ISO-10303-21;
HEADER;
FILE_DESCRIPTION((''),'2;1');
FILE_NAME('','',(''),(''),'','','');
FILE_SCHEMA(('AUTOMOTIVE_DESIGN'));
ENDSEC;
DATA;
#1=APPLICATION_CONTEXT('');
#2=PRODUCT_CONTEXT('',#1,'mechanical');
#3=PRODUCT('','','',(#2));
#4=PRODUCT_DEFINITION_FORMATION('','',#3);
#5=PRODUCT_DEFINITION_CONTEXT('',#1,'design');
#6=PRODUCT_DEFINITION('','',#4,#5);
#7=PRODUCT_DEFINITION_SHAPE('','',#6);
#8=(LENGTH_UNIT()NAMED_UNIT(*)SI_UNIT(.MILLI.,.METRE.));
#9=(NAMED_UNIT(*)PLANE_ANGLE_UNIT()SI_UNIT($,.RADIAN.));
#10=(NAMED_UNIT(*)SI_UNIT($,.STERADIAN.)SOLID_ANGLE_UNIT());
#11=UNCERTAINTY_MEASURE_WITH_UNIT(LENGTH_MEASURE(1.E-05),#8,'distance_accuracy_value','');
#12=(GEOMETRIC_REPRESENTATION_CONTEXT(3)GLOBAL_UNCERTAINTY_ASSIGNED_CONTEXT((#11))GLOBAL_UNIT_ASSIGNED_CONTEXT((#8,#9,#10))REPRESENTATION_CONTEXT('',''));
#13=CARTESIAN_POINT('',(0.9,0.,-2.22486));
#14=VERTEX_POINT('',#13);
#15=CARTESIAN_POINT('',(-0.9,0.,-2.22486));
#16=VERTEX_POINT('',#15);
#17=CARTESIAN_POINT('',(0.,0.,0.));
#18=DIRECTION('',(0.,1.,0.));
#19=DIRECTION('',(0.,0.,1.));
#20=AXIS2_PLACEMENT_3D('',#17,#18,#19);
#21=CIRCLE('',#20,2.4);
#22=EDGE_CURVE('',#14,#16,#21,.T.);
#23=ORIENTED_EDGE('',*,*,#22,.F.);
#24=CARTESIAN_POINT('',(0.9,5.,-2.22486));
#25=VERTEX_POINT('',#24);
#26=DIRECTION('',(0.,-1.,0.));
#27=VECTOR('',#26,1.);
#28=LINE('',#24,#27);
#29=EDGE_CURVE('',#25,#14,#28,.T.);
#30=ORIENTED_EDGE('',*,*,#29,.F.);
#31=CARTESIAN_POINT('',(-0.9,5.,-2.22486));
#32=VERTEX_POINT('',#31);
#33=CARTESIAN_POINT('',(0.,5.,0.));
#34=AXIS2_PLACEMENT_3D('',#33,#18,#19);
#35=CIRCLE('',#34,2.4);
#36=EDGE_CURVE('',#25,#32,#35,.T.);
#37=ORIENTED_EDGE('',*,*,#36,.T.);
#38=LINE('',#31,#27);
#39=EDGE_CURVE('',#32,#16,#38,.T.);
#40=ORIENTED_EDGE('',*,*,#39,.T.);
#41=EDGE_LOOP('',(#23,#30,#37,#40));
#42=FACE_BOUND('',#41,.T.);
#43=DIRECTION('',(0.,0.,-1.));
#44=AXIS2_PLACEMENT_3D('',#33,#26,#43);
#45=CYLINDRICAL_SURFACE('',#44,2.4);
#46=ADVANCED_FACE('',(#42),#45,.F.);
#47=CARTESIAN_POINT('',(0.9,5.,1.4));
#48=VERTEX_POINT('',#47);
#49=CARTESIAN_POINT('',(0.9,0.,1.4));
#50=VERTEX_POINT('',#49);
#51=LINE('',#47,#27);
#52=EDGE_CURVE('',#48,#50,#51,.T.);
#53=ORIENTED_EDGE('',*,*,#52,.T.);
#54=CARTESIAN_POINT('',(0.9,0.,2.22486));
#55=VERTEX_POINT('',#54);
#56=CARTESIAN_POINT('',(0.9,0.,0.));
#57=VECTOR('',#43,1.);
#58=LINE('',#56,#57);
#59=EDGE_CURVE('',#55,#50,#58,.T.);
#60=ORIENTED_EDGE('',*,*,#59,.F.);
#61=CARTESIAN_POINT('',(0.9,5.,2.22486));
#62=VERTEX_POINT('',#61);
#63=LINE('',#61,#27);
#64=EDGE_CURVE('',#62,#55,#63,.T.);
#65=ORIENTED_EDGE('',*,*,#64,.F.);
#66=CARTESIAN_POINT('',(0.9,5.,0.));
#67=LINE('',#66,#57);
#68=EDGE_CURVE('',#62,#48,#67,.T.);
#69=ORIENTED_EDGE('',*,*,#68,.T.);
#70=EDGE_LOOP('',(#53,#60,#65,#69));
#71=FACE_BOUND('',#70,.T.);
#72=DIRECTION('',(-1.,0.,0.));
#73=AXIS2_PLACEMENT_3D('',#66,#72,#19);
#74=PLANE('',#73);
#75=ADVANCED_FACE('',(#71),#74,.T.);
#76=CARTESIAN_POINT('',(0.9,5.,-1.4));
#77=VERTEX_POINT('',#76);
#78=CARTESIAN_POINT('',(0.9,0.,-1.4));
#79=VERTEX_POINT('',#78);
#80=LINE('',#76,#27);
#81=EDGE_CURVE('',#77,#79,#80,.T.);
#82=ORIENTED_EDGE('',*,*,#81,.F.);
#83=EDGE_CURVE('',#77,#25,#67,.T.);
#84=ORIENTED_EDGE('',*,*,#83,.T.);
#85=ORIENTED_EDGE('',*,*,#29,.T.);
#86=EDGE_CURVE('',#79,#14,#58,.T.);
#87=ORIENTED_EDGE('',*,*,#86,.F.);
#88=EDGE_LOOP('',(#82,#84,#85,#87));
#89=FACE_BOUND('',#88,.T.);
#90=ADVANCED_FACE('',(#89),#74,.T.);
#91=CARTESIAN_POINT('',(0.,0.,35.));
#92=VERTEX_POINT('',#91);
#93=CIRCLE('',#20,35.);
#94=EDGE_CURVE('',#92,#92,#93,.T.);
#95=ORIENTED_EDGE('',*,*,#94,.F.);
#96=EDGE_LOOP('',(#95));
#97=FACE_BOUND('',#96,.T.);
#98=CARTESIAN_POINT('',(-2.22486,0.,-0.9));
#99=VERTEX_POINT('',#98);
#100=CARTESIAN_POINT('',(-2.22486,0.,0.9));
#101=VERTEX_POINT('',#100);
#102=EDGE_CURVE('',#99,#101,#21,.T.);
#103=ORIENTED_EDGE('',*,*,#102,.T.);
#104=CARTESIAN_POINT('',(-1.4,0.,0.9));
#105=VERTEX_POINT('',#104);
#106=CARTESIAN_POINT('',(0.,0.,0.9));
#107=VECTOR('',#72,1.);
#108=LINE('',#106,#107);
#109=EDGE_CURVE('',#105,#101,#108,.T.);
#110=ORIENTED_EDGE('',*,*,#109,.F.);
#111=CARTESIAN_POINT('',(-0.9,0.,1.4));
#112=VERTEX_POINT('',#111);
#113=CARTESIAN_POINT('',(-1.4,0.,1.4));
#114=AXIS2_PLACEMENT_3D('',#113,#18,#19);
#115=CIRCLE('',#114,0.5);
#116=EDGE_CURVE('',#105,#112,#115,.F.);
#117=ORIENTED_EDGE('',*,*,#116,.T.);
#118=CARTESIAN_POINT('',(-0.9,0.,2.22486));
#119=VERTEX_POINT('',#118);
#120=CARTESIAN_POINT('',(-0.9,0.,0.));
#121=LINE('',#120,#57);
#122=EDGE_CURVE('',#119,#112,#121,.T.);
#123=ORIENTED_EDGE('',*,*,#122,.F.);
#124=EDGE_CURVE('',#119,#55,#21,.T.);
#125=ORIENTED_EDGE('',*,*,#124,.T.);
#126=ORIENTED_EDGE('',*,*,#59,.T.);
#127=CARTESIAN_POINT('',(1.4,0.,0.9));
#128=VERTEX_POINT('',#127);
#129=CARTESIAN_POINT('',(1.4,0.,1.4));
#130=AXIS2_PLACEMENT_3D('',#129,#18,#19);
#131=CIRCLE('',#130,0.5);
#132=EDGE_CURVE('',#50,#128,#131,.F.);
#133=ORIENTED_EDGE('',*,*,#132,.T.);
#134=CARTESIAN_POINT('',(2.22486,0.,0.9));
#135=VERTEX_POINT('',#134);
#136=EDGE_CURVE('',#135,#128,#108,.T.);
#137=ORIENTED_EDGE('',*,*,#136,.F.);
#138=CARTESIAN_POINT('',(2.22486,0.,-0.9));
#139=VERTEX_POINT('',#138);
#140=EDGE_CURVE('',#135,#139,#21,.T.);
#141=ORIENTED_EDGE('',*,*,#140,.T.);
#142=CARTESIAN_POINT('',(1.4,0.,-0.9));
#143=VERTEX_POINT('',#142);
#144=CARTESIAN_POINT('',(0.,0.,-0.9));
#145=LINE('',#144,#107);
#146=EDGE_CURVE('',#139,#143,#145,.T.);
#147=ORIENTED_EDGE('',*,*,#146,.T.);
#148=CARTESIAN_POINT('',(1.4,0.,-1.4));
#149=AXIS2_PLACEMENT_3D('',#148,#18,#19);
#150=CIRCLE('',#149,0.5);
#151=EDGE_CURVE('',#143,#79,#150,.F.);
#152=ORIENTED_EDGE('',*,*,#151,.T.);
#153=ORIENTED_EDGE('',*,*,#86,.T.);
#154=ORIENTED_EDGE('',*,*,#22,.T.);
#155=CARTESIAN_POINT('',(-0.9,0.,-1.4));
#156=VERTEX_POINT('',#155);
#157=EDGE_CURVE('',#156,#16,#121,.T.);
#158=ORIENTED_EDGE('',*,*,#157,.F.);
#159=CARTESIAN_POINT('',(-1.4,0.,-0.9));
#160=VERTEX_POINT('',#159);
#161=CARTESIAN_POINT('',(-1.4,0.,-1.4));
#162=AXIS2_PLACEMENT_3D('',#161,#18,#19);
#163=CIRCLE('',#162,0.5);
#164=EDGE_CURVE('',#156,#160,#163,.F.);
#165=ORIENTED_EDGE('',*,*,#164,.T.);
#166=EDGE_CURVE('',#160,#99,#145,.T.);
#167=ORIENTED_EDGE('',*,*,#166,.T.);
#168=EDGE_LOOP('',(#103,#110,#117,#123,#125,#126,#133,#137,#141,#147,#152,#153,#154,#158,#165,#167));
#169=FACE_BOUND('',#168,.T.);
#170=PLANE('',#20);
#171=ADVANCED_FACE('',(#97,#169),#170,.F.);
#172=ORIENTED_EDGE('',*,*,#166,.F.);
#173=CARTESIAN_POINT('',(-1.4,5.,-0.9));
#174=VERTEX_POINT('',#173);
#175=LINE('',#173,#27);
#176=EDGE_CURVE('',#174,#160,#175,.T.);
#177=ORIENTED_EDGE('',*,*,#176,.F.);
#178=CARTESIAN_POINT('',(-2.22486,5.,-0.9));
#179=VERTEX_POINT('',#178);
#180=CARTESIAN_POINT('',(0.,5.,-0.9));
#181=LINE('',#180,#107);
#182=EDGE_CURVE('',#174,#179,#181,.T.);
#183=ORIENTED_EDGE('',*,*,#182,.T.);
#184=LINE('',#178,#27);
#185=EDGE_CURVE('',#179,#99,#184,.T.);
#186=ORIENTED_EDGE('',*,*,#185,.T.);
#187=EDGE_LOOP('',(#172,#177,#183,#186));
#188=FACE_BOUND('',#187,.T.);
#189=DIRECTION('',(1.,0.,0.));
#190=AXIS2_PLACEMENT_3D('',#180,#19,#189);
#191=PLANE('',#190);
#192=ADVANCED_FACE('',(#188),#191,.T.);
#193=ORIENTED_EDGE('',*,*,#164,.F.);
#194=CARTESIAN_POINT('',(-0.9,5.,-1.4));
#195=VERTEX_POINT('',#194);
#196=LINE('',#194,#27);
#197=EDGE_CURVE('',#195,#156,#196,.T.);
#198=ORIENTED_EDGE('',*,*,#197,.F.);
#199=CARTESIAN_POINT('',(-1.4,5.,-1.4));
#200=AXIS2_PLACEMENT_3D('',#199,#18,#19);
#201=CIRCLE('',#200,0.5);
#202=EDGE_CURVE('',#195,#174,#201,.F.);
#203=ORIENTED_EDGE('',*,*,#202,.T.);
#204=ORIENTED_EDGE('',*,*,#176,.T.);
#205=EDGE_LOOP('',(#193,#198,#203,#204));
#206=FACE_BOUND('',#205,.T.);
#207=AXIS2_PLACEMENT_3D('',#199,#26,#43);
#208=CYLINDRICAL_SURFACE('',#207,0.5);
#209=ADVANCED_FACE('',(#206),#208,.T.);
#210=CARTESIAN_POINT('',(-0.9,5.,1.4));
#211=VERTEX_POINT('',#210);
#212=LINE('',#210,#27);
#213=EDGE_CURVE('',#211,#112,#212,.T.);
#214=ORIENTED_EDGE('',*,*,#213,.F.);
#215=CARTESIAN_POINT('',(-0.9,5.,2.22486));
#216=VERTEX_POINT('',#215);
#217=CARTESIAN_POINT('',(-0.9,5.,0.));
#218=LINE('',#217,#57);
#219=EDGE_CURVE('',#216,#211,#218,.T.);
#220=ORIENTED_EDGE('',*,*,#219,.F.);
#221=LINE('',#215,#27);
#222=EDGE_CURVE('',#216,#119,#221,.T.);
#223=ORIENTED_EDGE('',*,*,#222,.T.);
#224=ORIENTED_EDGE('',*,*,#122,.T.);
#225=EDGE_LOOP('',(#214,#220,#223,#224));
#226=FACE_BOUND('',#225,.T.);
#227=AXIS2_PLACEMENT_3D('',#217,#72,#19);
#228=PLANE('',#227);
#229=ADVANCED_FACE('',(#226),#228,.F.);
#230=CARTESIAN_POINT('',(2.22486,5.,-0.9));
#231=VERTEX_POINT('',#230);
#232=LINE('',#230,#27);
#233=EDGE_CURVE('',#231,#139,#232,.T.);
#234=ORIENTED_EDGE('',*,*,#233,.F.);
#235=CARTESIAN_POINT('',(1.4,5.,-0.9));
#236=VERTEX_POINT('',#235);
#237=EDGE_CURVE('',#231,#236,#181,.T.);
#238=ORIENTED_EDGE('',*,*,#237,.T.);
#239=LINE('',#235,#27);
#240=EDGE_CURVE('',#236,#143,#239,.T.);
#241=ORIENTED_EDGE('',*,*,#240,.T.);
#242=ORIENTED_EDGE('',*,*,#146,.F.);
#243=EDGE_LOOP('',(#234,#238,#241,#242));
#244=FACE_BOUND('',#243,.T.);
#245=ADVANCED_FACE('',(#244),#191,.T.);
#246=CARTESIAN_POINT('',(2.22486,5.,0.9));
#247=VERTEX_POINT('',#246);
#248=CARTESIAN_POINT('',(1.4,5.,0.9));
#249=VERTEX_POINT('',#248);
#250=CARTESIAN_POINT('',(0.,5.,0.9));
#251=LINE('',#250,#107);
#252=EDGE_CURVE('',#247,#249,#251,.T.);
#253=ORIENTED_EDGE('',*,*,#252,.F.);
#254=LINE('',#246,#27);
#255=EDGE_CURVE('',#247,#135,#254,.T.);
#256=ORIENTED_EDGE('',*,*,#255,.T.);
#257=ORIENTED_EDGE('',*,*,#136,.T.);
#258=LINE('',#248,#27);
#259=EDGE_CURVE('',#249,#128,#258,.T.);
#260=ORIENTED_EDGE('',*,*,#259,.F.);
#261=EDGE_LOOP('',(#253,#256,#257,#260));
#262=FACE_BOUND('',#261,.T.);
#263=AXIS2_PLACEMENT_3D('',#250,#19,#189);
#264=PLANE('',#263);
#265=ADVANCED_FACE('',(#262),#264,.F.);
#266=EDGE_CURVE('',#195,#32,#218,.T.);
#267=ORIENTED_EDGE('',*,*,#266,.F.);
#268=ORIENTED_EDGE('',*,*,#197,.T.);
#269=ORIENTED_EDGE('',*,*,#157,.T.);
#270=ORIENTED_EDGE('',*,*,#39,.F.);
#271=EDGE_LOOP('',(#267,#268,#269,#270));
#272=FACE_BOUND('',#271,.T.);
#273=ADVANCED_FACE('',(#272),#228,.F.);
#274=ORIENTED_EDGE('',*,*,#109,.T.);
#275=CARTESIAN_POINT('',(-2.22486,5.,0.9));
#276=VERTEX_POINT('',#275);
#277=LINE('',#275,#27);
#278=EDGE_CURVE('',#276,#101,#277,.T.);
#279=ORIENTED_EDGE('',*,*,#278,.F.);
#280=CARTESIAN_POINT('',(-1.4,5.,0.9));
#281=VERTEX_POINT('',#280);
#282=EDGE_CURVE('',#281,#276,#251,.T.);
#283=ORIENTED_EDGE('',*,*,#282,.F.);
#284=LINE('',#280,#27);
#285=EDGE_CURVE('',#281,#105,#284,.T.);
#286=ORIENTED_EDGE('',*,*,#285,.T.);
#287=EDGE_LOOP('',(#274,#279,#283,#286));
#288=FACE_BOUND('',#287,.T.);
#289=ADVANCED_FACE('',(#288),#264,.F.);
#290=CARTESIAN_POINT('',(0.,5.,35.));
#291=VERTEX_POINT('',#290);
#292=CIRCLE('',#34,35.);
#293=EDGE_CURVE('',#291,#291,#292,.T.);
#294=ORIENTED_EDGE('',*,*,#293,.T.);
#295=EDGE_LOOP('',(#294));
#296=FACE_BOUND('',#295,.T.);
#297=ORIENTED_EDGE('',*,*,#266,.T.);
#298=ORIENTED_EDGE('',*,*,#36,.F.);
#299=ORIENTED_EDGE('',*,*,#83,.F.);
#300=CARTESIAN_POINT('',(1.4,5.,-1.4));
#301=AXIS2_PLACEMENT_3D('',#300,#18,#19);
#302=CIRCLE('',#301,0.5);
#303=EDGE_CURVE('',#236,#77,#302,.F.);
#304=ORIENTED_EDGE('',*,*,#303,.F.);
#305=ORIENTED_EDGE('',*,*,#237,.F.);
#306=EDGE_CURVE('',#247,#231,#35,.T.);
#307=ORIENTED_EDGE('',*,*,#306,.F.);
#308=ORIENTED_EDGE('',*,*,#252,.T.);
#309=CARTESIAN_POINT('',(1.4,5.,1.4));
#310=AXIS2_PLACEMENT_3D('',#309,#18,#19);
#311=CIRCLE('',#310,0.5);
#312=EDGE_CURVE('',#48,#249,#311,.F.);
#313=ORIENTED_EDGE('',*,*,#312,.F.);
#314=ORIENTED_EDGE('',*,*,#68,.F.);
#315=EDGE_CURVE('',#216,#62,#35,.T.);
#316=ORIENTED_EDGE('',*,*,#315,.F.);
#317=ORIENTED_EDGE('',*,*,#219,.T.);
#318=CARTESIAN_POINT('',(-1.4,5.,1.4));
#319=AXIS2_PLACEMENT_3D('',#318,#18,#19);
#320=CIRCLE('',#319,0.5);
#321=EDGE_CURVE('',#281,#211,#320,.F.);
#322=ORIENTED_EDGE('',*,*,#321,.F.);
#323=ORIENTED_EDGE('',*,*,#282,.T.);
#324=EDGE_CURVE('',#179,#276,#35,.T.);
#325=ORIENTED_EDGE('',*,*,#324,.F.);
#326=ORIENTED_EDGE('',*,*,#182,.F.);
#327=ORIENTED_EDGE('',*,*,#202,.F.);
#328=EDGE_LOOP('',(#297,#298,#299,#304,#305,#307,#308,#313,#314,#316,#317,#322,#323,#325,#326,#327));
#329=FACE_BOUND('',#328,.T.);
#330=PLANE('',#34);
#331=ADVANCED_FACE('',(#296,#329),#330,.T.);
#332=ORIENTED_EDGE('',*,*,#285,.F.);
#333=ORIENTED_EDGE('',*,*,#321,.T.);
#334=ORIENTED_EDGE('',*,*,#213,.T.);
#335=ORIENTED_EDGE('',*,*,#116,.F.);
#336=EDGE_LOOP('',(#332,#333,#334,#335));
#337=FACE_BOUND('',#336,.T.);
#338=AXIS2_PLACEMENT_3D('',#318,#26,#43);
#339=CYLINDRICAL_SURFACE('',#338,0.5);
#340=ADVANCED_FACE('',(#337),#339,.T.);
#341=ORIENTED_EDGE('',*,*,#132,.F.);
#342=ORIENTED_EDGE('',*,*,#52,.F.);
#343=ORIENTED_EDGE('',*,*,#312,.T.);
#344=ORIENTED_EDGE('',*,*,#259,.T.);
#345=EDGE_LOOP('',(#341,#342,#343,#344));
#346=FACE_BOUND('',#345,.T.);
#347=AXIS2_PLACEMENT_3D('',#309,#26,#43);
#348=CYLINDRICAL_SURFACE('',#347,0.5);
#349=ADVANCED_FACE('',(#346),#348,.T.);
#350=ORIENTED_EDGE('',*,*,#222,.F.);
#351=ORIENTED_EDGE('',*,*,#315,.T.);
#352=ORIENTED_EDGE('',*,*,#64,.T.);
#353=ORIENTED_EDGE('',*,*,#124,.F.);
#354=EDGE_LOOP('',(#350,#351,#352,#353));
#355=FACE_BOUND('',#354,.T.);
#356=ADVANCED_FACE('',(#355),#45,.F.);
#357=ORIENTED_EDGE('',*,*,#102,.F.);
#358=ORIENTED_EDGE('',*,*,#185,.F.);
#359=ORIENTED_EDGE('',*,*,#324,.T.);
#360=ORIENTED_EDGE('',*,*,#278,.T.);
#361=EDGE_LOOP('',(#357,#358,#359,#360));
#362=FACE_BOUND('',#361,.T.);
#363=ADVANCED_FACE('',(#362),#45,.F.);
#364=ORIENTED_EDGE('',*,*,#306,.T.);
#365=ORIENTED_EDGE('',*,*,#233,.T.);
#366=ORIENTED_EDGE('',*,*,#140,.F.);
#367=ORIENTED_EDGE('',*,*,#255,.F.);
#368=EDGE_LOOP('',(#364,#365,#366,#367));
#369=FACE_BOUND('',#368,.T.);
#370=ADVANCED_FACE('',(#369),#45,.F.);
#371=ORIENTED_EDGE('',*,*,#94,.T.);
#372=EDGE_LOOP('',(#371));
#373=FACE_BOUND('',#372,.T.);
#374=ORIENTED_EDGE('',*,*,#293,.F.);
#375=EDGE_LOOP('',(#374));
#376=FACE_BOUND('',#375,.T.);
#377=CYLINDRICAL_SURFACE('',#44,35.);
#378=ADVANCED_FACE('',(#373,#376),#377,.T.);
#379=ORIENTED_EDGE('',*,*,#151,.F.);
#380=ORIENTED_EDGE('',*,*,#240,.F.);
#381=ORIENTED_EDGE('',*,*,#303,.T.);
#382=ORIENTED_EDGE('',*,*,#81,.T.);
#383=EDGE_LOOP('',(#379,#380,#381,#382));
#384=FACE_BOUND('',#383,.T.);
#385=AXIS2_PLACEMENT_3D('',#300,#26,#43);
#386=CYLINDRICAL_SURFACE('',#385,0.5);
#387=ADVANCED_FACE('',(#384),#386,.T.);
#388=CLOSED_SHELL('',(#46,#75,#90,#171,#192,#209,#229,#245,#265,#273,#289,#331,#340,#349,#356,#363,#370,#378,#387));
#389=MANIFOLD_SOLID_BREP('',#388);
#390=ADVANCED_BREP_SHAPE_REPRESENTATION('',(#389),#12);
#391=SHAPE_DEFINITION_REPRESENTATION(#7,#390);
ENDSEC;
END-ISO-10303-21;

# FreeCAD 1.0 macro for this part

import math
import FreeCAD as App
import Part
import Sketcher
from FreeCAD import Vector
Q = App.Units.Quantity

doc = App.newDocument("Part")
body = doc.addObject("PartDesign::Body", "Body")

# Sketch on XZ plane
sketch1 = body.newObject("Sketcher::SketchObject", "Sketch")
sketch1.AttachmentSupport = (doc.getObject("XZ_Plane"), [""])
sketch1.MapMode = "FlatFace"
sketch1.addGeometry(Part.Circle(Vector(0, 0, 0), Vector(0, 0, 1), 35), False)
sketch1.addGeometry(Part.LineSegment(Vector(-2.22, -0.9, 0), Vector(-1.4, -0.9, 0)), False)
sketch1.addGeometry(Part.ArcOfCircle(Part.Circle(Vector(-1.4, -1.4, 0), Vector(0, 0, 1), 0.5), math.radians(0), math.radians(90)), False)
sketch1.addGeometry(Part.LineSegment(Vector(-0.9, -1.4, 0), Vector(-0.9, -2.22, 0)), False)
sketch1.addGeometry(Part.ArcOfCircle(Part.Circle(Vector(0, 0, 0), Vector(0, 0, 1), 2.4), math.radians(-112), math.radians(-68)), False)
sketch1.addGeometry(Part.LineSegment(Vector(0.9, -2.22, 0), Vector(0.9, -1.4, 0)), False)
sketch1.addGeometry(Part.ArcOfCircle(Part.Circle(Vector(1.4, -1.4, 0), Vector(0, 0, 1), 0.5), math.radians(90), math.radians(180)), False)
sketch1.addGeometry(Part.LineSegment(Vector(1.4, -0.9, 0), Vector(2.22, -0.9, 0)), False)
sketch1.addGeometry(Part.ArcOfCircle(Part.Circle(Vector(0, 0, 0), Vector(0, 0, 1), 2.4), math.radians(-22), math.radians(22)), False)
sketch1.addGeometry(Part.LineSegment(Vector(2.22, 0.9, 0), Vector(1.4, 0.9, 0)), False)
sketch1.addGeometry(Part.ArcOfCircle(Part.Circle(Vector(1.4, 1.4, 0), Vector(0, 0, 1), 0.5), math.radians(180), math.radians(270)), False)
sketch1.addGeometry(Part.LineSegment(Vector(0.9, 1.4, 0), Vector(0.9, 2.22, 0)), False)
sketch1.addGeometry(Part.ArcOfCircle(Part.Circle(Vector(0, 0, 0), Vector(0, 0, 1), 2.4), math.radians(68), math.radians(112)), False)
sketch1.addGeometry(Part.LineSegment(Vector(-0.9, 2.22, 0), Vector(-0.9, 1.4, 0)), False)
sketch1.addGeometry(Part.ArcOfCircle(Part.Circle(Vector(-1.4, 1.4, 0), Vector(0, 0, 1), 0.5), math.radians(-90), math.radians(0)), False)
sketch1.addGeometry(Part.LineSegment(Vector(-1.4, 0.9, 0), Vector(-2.22, 0.9, 0)), False)
sketch1.addGeometry(Part.ArcOfCircle(Part.Circle(Vector(0, 0, 0), Vector(0, 0, 1), 2.4), math.radians(158), math.radians(202)), False)
sketch1.addConstraint(Sketcher.Constraint("Tangent", 1, 2, 2, 2))
sketch1.addConstraint(Sketcher.Constraint("Tangent", 2, 1, 3, 1))
sketch1.addConstraint(Sketcher.Constraint("Coincident", 3, 2, 4, 1))
sketch1.addConstraint(Sketcher.Constraint("Coincident", 4, 2, 5, 1))
sketch1.addConstraint(Sketcher.Constraint("Tangent", 5, 2, 6, 2))
sketch1.addConstraint(Sketcher.Constraint("Tangent", 6, 1, 7, 1))
sketch1.addConstraint(Sketcher.Constraint("Coincident", 7, 2, 8, 1))
sketch1.addConstraint(Sketcher.Constraint("Coincident", 8, 2, 9, 1))
sketch1.addConstraint(Sketcher.Constraint("Tangent", 9, 2, 10, 2))
sketch1.addConstraint(Sketcher.Constraint("Tangent", 10, 1, 11, 1))
sketch1.addConstraint(Sketcher.Constraint("Coincident", 11, 2, 12, 1))
sketch1.addConstraint(Sketcher.Constraint("Coincident", 12, 2, 13, 1))
sketch1.addConstraint(Sketcher.Constraint("Tangent", 13, 2, 14, 2))
sketch1.addConstraint(Sketcher.Constraint("Tangent", 14, 1, 15, 1))
sketch1.addConstraint(Sketcher.Constraint("Coincident", 15, 2, 16, 1))
sketch1.addConstraint(Sketcher.Constraint("Coincident", 16, 2, 1, 1))
sketch1.addConstraint(Sketcher.Constraint("Horizontal", 1))
sketch1.addConstraint(Sketcher.Constraint("Vertical", 3))
sketch1.addConstraint(Sketcher.Constraint("Vertical", 5))
sketch1.addConstraint(Sketcher.Constraint("Horizontal", 7))
sketch1.addConstraint(Sketcher.Constraint("Horizontal", 9))
sketch1.addConstraint(Sketcher.Constraint("Vertical", 11))
sketch1.addConstraint(Sketcher.Constraint("Vertical", 13))
sketch1.addConstraint(Sketcher.Constraint("Horizontal", 15))
sketch1.addConstraint(Sketcher.Constraint("Coincident", 0, 3, -1, 1))
sketch1.addConstraint(Sketcher.Constraint("Coincident", 4, 3, -1, 1))
sketch1.addConstraint(Sketcher.Constraint("Coincident", 8, 3, -1, 1))
sketch1.addConstraint(Sketcher.Constraint("Coincident", 12, 3, -1, 1))
sketch1.addConstraint(Sketcher.Constraint("Coincident", 16, 3, -1, 1))
sketch1.addConstraint(Sketcher.Constraint("Equal", 2, 6))
sketch1.addConstraint(Sketcher.Constraint("Equal", 4, 8))
sketch1.addConstraint(Sketcher.Constraint("Equal", 6, 10))
sketch1.addConstraint(Sketcher.Constraint("Equal", 8, 12))
sketch1.addConstraint(Sketcher.Constraint("Equal", 10, 14))
sketch1.addConstraint(Sketcher.Constraint("Equal", 12, 16))
sketch1.addConstraint(Sketcher.Constraint("Symmetric", 2, 3, 10, 3, -1, 1))
sketch1.addConstraint(Sketcher.Constraint("Symmetric", 6, 3, 14, 3, -1, 1))
sketch1.addConstraint(Sketcher.Constraint("Symmetric", 2, 3, 6, 3, -2))
sketch1.addConstraint(Sketcher.Constraint("Equal", 15, 3))
sketch1.addConstraint(Sketcher.Constraint("Diameter", 0, Q("70 mm")))
sketch1.addConstraint(Sketcher.Constraint("Radius", 2, Q("0.5 mm")))
sketch1.addConstraint(Sketcher.Constraint("Radius", 4, Q("2.4 mm")))
sketch1.addConstraint(Sketcher.Constraint("DistanceX", 2, 3, -1, 1, Q("1.4 mm")))
pad1 = body.newObject("PartDesign::Pad", "Pad")
pad1.Profile = sketch1
pad1.Length = 5
pad1.Reversed = True

doc.recompute()
